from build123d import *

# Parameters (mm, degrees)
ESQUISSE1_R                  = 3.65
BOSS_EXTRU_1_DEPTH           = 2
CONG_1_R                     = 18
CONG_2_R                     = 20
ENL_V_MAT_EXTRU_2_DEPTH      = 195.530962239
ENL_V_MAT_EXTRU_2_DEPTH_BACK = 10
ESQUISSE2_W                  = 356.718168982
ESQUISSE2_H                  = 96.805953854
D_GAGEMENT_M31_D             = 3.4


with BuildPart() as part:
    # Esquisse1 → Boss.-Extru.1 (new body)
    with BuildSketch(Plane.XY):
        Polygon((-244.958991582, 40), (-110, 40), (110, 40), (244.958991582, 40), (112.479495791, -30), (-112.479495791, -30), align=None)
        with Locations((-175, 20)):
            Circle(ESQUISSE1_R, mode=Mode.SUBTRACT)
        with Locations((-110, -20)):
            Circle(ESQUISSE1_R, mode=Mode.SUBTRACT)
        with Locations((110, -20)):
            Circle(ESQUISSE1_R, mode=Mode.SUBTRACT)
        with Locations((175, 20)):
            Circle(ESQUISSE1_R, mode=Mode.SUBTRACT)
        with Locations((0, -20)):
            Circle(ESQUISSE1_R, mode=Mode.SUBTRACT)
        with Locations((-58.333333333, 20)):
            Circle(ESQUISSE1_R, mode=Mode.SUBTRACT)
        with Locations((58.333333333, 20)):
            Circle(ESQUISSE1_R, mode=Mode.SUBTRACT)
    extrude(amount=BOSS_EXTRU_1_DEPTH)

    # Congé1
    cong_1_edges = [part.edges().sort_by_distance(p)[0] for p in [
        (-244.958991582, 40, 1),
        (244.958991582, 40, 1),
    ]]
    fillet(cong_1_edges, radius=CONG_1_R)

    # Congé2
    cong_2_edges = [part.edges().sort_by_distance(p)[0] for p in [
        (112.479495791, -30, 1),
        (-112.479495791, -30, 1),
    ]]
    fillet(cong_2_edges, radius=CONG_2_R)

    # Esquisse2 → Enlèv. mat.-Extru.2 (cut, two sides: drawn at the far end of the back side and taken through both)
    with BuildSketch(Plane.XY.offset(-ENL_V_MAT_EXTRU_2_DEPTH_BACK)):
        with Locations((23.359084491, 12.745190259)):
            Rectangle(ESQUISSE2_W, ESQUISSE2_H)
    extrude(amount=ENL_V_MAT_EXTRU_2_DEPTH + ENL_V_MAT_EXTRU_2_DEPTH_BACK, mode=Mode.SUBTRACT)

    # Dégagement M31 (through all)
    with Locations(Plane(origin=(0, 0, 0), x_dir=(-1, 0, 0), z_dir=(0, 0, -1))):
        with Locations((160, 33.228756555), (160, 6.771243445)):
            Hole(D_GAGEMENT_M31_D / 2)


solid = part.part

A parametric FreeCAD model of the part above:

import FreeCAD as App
import Part
import Sketcher

V = App.Vector
Q = App.Units.Quantity


def edges_at(feature, points):
    """Names of the edges that pass closest to the given points."""
    edges = feature.Shape.Edges
    near = lambda p: min(range(len(edges)), key=lambda i: edges[i].distToShape(Part.Vertex(*p))[0])
    return sorted({f"Edge{near(p) + 1}" for p in points})


def add_polygon(sketch, points):
    """Adds a closed chain of lines whose ends are joined by coincident constraints."""
    first, n = sketch.GeometryCount, len(points)
    for a, b in zip(points, points[1:] + points[:1]):
        sketch.addGeometry(Part.LineSegment(App.Vector(*a, 0), App.Vector(*b, 0)), False)
    for i in range(n):
        sketch.addConstraint(Sketcher.Constraint("Coincident", first + i, 2, first + (i + 1) % n, 1))

doc = App.newDocument("Part")
body = doc.addObject("PartDesign::Body", "Body")

sketch1 = doc.addObject("Sketcher::SketchObject", "Sketch")
body.addObject(sketch1)
sketch1.AttachmentSupport = (doc.XY_Plane, [""])
sketch1.MapMode = "FlatFace"
add_polygon(sketch1, [(244.958992, 40), (-244.958992, 40), (-112.479496, -30), (112.479496, -30)])
sketch1.addGeometry(Part.Circle(V(110, -20, 0), V(0, 0, 1), 3.65), False)
sketch1.addGeometry(Part.Circle(V(0, -20, 0), V(0, 0, 1), 3.65), False)
sketch1.addGeometry(Part.Circle(V(-110, -20, 0), V(0, 0, 1), 3.65), False)
sketch1.addGeometry(Part.Circle(V(175, 20, 0), V(0, 0, 1), 3.65), False)
sketch1.addGeometry(Part.Circle(V(58.333333, 20, 0), V(0, 0, 1), 3.65), False)
sketch1.addGeometry(Part.Circle(V(-58.333333, 20, 0), V(0, 0, 1), 3.65), False)
sketch1.addGeometry(Part.Circle(V(-175, 20, 0), V(0, 0, 1), 3.65), False)
sketch1.addConstraint([
    Sketcher.Constraint("Horizontal", 0),
    Sketcher.Constraint("Horizontal", 2),
    Sketcher.Constraint("Equal", 4, 5),
    Sketcher.Constraint("Equal", 5, 6),
    Sketcher.Constraint("Equal", 6, 7),
    Sketcher.Constraint("Equal", 7, 8),
    Sketcher.Constraint("Equal", 8, 9),
    Sketcher.Constraint("Equal", 9, 10),
    Sketcher.Constraint("Symmetric", 4, 3, 6, 3, -2),
    Sketcher.Constraint("Symmetric", 8, 3, 9, 3, -2),
    Sketcher.Constraint("Symmetric", 7, 3, 10, 3, -2),
    Sketcher.Constraint("PointOnObject", 5, 3, -2),
    Sketcher.Constraint("Horizontal", 4, 3, 5, 3),
    Sketcher.Constraint("Horizontal", 7, 3, 8, 3),
    Sketcher.Constraint("Equal", 1, 3),
    Sketcher.Constraint("Diameter", 4, Q("7.3 mm")),
    Sketcher.Constraint("DistanceX", -1, 1, 4, 3, Q("110 mm")),
    Sketcher.Constraint("DistanceY", 4, 3, -1, 1, Q("20 mm")),
    Sketcher.Constraint("DistanceX", -1, 1, 7, 3, Q("175 mm")),
    Sketcher.Constraint("DistanceY", -1, 1, 7, 3, Q("20 mm")),
    Sketcher.Constraint("DistanceY", -1, 1, 0, 2, Q("40 mm")),
    Sketcher.Constraint("DistanceY", 1, 2, -1, 1, Q("30 mm")),
    Sketcher.Constraint("DistanceX", 2, 1, 2, 2, Q("224.958992 mm")),
    Sketcher.Constraint("DistanceX", 0, 2, 0, 1, Q("489.917983 mm")),
    Sketcher.Constraint("DistanceX", 0, 2, -1, 1, Q("244.958992 mm")),
    Sketcher.Constraint("DistanceX", 0, 2, 9, 3, Q("186.625658 mm")),
])
pad1 = doc.addObject("PartDesign::Pad", "Pad")
body.addObject(pad1)
pad1.Profile = sketch1
pad1.Length = 2
doc.recompute()

fillet = doc.addObject("PartDesign::Fillet", "Fillet")
body.addObject(fillet)
fillet.Base = (pad1, edges_at(pad1, [(-244.959, 40, 1), (244.959, 40, 1)]))
fillet.Radius = 18
doc.recompute()

fillet2 = doc.addObject("PartDesign::Fillet", "Fillet001")
body.addObject(fillet2)
fillet2.Base = (fillet, edges_at(fillet, [(112.479, -30, 1), (-112.479, -30, 1)]))
fillet2.Radius = 20

sketch2 = doc.addObject("Sketcher::SketchObject", "Sketch001")
body.addObject(sketch2)
sketch2.AttachmentSupport = (doc.XY_Plane, [""])
sketch2.MapMode = "FlatFace"
add_polygon(sketch2, [(-155, 61.148167), (-155, -35.657787), (201.718169, -35.657787), (201.718169, 61.148167)])
sketch2.addConstraint([
    Sketcher.Constraint("Vertical", 0),
    Sketcher.Constraint("Horizontal", 1),
    Sketcher.Constraint("Vertical", 2),
    Sketcher.Constraint("Horizontal", 3),
    Sketcher.Constraint("DistanceX", 0, 2, -1, 1, Q("155 mm")),
    Sketcher.Constraint("DistanceX", 1, 1, 1, 2, Q("356.718169 mm")),
    Sketcher.Constraint("DistanceY", 0, 2, 0, 1, Q("96.805954 mm")),
    Sketcher.Constraint("DistanceY", 0, 2, -1, 1, Q("35.657787 mm")),
])
pocket1 = doc.addObject("PartDesign::Pocket", "Pocket")
body.addObject(pocket1)
pocket1.Profile = sketch2
pocket1.Type = "ThroughAll"
pocket1.Midplane = True

sketch3 = doc.addObject("Sketcher::SketchObject", "Sketch002")
body.addObject(sketch3)
sketch3.AttachmentSupport = (doc.XY_Plane, [""])
sketch3.MapMode = "FlatFace"
sketch3.addGeometry([
    Part.Circle(V(-160, 33.228757, 0), V(0, 0, 1), 1.7),
    Part.Circle(V(-160, 6.771243, 0), V(0, 0, 1), 1.7),
], False)
sketch3.addConstraint([
    Sketcher.Constraint("Equal", 0, 1),
    Sketcher.Constraint("Vertical", 0, 3, 1, 3),
    Sketcher.Constraint("Diameter", 0, Q("3.4 mm")),
    Sketcher.Constraint("DistanceX", 0, 3, -1, 1, Q("160 mm")),
    Sketcher.Constraint("DistanceY", -1, 1, 0, 3, Q("33.228757 mm")),
    Sketcher.Constraint("DistanceY", -1, 1, 1, 3, Q("6.771243 mm")),
])
doc.recompute()
hole = doc.addObject("PartDesign::Hole", "Hole")
body.addObject(hole)
hole.Profile = sketch3
hole.ThreadType = "None"
hole.Diameter = 3.4
hole.DepthType = "ThroughAll"
hole.Reversed = True

doc.recompute()
